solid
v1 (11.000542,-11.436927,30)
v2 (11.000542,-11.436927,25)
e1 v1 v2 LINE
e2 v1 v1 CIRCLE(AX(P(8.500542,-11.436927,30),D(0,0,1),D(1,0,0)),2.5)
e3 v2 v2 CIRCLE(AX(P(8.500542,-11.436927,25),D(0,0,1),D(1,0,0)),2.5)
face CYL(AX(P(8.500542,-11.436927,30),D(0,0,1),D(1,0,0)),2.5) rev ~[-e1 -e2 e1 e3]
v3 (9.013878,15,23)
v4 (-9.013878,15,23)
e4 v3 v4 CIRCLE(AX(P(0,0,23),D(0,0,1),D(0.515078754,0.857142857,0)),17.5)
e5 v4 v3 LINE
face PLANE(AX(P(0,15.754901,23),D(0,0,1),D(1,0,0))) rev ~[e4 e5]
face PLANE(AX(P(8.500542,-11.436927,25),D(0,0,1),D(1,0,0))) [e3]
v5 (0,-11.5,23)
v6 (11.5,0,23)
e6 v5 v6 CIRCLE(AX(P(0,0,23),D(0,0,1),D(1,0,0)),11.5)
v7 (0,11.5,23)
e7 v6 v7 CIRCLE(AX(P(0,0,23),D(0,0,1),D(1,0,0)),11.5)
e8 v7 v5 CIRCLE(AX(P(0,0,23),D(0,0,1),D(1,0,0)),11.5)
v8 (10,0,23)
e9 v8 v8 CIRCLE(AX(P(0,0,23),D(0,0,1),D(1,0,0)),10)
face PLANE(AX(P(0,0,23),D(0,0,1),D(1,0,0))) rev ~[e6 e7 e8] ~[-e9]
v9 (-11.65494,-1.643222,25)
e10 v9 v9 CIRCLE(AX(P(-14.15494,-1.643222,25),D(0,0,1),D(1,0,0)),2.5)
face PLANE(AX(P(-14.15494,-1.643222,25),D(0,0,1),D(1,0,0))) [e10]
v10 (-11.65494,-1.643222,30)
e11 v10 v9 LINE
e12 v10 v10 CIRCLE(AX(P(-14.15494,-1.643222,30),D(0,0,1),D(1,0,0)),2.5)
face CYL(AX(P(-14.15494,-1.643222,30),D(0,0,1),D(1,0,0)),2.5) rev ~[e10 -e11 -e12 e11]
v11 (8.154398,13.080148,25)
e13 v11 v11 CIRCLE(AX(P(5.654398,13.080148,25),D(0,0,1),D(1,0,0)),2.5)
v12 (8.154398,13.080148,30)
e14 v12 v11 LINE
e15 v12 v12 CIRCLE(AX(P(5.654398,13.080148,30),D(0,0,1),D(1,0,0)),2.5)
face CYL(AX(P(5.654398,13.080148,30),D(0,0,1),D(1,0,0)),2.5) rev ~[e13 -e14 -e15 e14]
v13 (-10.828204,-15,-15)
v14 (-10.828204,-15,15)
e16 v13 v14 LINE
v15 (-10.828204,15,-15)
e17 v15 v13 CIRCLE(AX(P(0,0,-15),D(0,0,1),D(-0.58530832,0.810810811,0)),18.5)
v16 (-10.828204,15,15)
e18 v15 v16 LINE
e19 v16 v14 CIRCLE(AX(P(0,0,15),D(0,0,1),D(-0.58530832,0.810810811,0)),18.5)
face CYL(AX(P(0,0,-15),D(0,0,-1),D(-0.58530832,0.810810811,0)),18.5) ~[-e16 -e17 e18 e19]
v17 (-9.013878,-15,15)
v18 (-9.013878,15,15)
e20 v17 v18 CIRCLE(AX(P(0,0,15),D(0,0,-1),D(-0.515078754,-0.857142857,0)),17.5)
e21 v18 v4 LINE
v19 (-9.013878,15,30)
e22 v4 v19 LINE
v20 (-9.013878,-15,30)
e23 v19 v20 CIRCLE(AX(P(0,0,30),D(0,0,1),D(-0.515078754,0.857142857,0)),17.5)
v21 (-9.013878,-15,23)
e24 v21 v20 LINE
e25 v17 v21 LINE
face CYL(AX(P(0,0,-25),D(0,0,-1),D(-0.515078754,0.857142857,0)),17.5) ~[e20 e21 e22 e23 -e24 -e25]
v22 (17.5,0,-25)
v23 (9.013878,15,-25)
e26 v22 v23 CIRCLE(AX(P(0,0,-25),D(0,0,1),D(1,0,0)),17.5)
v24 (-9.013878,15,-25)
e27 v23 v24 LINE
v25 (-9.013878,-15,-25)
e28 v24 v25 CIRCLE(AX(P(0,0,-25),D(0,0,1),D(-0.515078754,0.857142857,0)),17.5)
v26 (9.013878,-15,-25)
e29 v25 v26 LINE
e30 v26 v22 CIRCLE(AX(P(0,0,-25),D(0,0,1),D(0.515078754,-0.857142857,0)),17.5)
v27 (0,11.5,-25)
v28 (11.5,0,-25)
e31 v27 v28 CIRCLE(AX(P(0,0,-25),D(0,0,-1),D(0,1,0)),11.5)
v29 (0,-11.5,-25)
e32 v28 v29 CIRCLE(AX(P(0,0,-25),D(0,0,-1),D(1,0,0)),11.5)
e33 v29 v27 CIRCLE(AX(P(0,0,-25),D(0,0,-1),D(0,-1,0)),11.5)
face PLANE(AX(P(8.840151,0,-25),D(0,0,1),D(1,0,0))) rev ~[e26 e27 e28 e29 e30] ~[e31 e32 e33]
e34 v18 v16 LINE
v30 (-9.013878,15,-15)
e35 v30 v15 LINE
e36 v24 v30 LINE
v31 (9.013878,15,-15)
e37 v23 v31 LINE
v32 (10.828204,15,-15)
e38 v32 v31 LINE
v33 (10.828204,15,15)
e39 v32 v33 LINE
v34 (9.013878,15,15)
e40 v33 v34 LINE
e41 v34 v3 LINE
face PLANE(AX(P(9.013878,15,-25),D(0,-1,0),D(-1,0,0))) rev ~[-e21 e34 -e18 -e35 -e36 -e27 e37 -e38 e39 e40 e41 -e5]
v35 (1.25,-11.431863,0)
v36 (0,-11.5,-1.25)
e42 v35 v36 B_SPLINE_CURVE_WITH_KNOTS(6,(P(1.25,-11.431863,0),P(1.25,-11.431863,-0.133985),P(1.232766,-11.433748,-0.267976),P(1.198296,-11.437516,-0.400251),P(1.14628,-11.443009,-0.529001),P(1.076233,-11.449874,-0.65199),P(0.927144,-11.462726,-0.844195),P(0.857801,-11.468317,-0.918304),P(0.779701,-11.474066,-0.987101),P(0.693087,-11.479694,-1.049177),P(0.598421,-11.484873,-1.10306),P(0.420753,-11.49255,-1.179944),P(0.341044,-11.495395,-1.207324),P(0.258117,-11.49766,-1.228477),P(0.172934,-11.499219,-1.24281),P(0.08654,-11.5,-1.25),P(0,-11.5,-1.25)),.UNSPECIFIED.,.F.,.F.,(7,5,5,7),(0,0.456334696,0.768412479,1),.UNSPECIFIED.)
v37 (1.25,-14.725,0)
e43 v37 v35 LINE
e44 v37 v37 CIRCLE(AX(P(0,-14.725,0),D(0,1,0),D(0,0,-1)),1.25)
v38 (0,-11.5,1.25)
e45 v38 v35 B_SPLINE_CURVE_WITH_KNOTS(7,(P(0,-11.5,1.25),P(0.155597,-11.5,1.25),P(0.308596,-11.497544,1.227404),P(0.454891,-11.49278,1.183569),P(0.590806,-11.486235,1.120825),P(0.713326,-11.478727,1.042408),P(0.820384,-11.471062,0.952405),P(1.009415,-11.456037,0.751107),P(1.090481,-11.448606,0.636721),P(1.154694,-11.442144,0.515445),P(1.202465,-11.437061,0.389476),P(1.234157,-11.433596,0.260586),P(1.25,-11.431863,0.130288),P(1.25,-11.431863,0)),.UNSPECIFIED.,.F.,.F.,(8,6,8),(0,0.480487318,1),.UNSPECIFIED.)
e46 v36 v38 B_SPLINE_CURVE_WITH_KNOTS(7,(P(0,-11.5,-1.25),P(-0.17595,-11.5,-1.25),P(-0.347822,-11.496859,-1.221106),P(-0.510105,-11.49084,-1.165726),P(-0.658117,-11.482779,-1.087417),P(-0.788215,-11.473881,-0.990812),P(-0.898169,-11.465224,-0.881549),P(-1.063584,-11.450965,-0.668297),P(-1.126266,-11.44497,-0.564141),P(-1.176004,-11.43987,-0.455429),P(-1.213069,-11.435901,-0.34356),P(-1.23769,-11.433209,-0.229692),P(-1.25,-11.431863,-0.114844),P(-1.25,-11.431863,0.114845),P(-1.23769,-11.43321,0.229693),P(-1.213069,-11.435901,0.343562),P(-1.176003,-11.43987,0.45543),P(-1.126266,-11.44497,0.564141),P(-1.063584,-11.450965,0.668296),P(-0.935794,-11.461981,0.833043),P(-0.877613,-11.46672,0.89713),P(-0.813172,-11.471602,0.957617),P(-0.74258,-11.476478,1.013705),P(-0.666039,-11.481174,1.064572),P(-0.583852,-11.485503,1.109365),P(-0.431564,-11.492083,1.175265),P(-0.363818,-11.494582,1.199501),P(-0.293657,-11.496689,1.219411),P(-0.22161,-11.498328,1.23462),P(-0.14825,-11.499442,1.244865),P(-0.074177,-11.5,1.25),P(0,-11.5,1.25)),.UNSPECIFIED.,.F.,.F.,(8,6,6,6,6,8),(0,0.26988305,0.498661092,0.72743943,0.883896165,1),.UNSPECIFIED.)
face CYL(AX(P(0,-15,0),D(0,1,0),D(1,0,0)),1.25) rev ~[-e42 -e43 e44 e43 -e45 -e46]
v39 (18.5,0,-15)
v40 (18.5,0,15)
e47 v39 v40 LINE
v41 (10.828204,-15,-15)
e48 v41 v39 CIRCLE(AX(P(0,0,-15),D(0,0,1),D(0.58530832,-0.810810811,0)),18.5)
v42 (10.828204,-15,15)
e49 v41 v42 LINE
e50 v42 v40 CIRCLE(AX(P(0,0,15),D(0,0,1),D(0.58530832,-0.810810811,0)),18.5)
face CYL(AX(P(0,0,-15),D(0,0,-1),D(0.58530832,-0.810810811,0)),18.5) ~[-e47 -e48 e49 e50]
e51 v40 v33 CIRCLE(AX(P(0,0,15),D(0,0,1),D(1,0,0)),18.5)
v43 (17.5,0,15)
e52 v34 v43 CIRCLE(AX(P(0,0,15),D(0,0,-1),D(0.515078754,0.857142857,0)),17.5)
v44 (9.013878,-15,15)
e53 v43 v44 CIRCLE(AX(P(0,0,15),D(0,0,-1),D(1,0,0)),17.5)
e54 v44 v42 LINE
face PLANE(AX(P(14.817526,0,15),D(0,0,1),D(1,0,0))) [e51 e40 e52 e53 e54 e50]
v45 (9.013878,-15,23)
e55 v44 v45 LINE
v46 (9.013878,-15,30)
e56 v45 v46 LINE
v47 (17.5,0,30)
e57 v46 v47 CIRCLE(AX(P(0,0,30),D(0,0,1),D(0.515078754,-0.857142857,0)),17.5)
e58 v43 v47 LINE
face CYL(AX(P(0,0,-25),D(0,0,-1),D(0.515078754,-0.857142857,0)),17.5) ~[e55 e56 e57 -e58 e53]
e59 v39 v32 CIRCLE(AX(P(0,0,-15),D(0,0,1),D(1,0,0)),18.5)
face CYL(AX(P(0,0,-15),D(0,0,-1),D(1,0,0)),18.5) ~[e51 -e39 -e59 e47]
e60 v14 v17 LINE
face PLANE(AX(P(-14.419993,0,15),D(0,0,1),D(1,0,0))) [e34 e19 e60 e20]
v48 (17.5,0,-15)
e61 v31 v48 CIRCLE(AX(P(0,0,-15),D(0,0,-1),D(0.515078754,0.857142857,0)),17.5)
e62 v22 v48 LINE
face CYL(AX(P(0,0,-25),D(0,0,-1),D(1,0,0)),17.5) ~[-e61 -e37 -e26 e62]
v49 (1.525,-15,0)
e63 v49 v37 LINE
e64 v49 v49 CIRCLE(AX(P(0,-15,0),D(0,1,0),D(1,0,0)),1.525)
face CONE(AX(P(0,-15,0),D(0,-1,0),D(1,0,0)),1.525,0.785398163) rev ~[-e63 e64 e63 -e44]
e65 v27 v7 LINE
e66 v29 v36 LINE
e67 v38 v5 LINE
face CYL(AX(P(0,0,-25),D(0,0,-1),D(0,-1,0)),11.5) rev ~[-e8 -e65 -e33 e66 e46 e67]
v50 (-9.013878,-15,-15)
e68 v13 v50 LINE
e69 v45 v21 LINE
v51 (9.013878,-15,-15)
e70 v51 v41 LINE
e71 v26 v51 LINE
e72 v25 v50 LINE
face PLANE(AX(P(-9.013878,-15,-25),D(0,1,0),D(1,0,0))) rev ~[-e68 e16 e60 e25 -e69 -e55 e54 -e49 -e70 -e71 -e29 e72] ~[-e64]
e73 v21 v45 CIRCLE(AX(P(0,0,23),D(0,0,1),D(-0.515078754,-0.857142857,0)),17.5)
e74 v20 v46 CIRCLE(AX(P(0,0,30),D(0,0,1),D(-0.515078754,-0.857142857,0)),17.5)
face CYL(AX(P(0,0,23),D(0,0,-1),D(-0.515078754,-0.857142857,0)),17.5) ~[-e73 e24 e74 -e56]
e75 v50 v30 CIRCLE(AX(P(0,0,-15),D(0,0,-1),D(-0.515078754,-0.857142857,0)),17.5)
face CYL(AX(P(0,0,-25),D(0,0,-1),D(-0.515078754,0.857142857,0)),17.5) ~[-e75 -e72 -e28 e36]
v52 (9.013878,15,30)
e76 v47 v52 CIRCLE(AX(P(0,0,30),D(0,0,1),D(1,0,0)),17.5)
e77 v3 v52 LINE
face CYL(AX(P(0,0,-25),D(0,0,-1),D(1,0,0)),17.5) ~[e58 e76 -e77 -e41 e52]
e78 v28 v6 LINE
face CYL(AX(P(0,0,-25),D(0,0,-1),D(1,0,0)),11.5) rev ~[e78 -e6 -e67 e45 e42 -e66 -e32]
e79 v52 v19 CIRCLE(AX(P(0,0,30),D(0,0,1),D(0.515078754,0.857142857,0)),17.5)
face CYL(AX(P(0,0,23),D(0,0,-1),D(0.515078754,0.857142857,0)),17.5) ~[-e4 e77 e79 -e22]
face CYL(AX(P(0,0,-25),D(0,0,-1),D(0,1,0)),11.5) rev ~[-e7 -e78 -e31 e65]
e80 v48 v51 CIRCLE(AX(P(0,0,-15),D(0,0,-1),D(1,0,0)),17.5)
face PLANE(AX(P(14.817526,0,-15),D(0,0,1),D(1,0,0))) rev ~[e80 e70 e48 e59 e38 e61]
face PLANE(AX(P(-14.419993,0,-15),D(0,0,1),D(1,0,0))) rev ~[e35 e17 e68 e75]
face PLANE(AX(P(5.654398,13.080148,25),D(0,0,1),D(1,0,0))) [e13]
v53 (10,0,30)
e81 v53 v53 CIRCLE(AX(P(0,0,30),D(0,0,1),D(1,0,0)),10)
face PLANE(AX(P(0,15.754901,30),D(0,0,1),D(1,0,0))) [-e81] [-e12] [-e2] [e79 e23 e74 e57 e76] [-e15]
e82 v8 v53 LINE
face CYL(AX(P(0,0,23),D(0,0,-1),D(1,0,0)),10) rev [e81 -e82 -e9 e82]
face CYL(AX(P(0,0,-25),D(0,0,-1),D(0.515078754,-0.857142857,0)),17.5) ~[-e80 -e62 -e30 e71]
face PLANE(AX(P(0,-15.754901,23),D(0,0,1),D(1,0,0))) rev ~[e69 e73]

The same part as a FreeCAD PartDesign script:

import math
import FreeCAD as App
import Part
import Sketcher

V = App.Vector
Q = App.Units.Quantity

doc = App.newDocument("Part")
params = doc.addObject("Spreadsheet::Sheet", "Params")
for row, (alias, value) in enumerate([
    ("sketch1_radius", "17.5 mm"),
    ("sketch1_radius2", "11.5 mm"),
    ("pad1_length", "30 mm"),
    ("pad1_length2", "25 mm"),
    ("sketch2_radius", "18.5 mm"),
    ("sketch2_radius2", "17.5 mm"),
    ("pad2_length", "15 mm"),
    ("pad2_length2", "15 mm"),
    ("sketch3_diameter", "23 mm"),
    ("sketch3_diameter2", "20 mm"),
    ("sketch3_radius", "17.5 mm"),
    ("pad3_length", "7 mm"),
    ("sketch4_diameter", "5 mm"),
    ("pocket1_length", "5 mm"),
    ("sketch5_diameter", "2.5 mm"),
    ("hole_diameter", "2.5 mm"),
    ("hole_depth", "7.5 mm"),
    ("hole_csink_diameter", "3.05 mm"),
], start=1):
    params.set(f"A{row}", alias)
    params.set(f"B{row}", "=" + value)
    params.setAlias(f"B{row}", alias)

body = doc.addObject("PartDesign::Body", "Body")

# Sketch on XY plane
sketch1 = doc.addObject("Sketcher::SketchObject", "Sketch")
body.addObject(sketch1)
sketch1.AttachmentSupport = (doc.XY_Plane, [""])
sketch1.MapMode = "FlatFace"
sketch1.addGeometry(Part.ArcOfCircle(Part.Circle(V(0, 0, 0), V(0, 0, 1), 17), math.radians(-59), math.radians(0)), False)
sketch1.addGeometry(Part.ArcOfCircle(Part.Circle(V(0, 0, 0), V(0, 0, 1), 17), math.radians(0), math.radians(59)), False)
sketch1.addGeometry(Part.LineSegment(V(9, 15, 0), V(-9, 15, 0)), False)
sketch1.addGeometry(Part.ArcOfCircle(Part.Circle(V(0, 0, 0), V(0, 0, 1), 18), math.radians(121), math.radians(239)), False)
sketch1.addGeometry(Part.LineSegment(V(-9, -15, 0), V(9, -15, 0)), False)
sketch1.addGeometry(Part.ArcOfCircle(Part.Circle(V(0, 0, 0), V(0, 0, 1), 11), math.radians(-90), math.radians(0)), False)
sketch1.addGeometry(Part.ArcOfCircle(Part.Circle(V(0, 0, 0), V(0, 0, 1), 12), math.radians(90), math.radians(270)), False)
sketch1.addGeometry(Part.ArcOfCircle(Part.Circle(V(0, 0, 0), V(0, 0, 1), 11), math.radians(0), math.radians(90)), False)
sketch1.addConstraint(Sketcher.Constraint("Tangent", 0, 2, 1, 1))
sketch1.addConstraint(Sketcher.Constraint("Coincident", 1, 2, 2, 1))
sketch1.addConstraint(Sketcher.Constraint("Coincident", 2, 2, 3, 1))
sketch1.addConstraint(Sketcher.Constraint("Coincident", 3, 2, 4, 1))
sketch1.addConstraint(Sketcher.Constraint("Coincident", 4, 2, 0, 1))
sketch1.addConstraint(Sketcher.Constraint("Tangent", 5, 1, 6, 2))
sketch1.addConstraint(Sketcher.Constraint("Tangent", 6, 1, 7, 2))
sketch1.addConstraint(Sketcher.Constraint("Tangent", 7, 1, 5, 2))
sketch1.addConstraint(Sketcher.Constraint("Horizontal", 2))
sketch1.addConstraint(Sketcher.Constraint("Horizontal", 4))
sketch1.addConstraint(Sketcher.Constraint("Coincident", 0, 3, -1, 1))
sketch1.addConstraint(Sketcher.Constraint("Coincident", 3, 3, -1, 1))
sketch1.addConstraint(Sketcher.Constraint("Coincident", 5, 3, -1, 1))
sketch1.addConstraint(Sketcher.Constraint("Equal", 0, 1))
sketch1.addConstraint(Sketcher.Constraint("Equal", 1, 3))
sketch1.addConstraint(Sketcher.Constraint("PointOnObject", 0, 2, -1))
sketch1.addConstraint(Sketcher.Constraint("PointOnObject", 5, 1, -2))
sketch1.addConstraint(Sketcher.Constraint("PointOnObject", 6, 1, -2))
sketch1.addConstraint(Sketcher.Constraint("PointOnObject", 7, 1, -1))
sketch1.addConstraint(Sketcher.Constraint("Vertical", 2, 2, 3, 2))
sketch1.addConstraint(Sketcher.Constraint("Radius", 0, Q("17.5 mm")))
sketch1.addConstraint(Sketcher.Constraint("Radius", 5, Q("11.5 mm")))
sketch1.addConstraint(Sketcher.Constraint("DistanceY", -1, 1, 1, 2, Q("15 mm")))
sketch1.setExpression("Constraints[20]", "Params.sketch1_radius")
sketch1.setExpression("Constraints[21]", "Params.sketch1_radius2")
pad1 = doc.addObject("PartDesign::Pad", "Pad")
body.addObject(pad1)
pad1.Profile = sketch1
pad1.Type = "TwoLengths"
pad1.setExpression("Length", "Params.pad1_length")
pad1.setExpression("Length2", "Params.pad1_length2")

# Sketch on XY plane
sketch2 = doc.addObject("Sketcher::SketchObject", "Sketch001")
body.addObject(sketch2)
sketch2.AttachmentSupport = (doc.XY_Plane, [""])
sketch2.MapMode = "FlatFace"
sketch2.addGeometry(Part.LineSegment(V(-9, 15, 0), V(-10.8, 15, 0)), False)
sketch2.addGeometry(Part.ArcOfCircle(Part.Circle(V(0, 0, 0), V(0, 0, 1), 18.5), math.radians(126), math.radians(234)), False)
sketch2.addGeometry(Part.LineSegment(V(-10.8, -15, 0), V(-9, -15, 0)), False)
sketch2.addGeometry(Part.ArcOfCircle(Part.Circle(V(0, 0, 0), V(0, 0, 1), 17.5), math.radians(121), math.radians(239)), False)
sketch2.addGeometry(Part.ArcOfCircle(Part.Circle(V(0, 0, 0), V(0, 0, 1), 18.5), math.radians(0), math.radians(54)), False)
sketch2.addGeometry(Part.LineSegment(V(10.8, 15, 0), V(9, 15, 0)), False)
sketch2.addGeometry(Part.ArcOfCircle(Part.Circle(V(0, 0, 0), V(0, 0, 1), 17.5), math.radians(0), math.radians(59)), False)
sketch2.addGeometry(Part.ArcOfCircle(Part.Circle(V(0, 0, 0), V(0, 0, 1), 17.5), math.radians(-59), math.radians(0)), False)
sketch2.addGeometry(Part.LineSegment(V(9, -15, 0), V(10.8, -15, 0)), False)
sketch2.addGeometry(Part.ArcOfCircle(Part.Circle(V(0, 0, 0), V(0, 0, 1), 18.5), math.radians(-54), math.radians(0)), False)
sketch2.addConstraint(Sketcher.Constraint("Coincident", 0, 2, 1, 1))
sketch2.addConstraint(Sketcher.Constraint("Coincident", 1, 2, 2, 1))
sketch2.addConstraint(Sketcher.Constraint("Coincident", 2, 2, 3, 2))
sketch2.addConstraint(Sketcher.Constraint("Coincident", 3, 1, 0, 1))
sketch2.addConstraint(Sketcher.Constraint("Coincident", 4, 2, 5, 1))
sketch2.addConstraint(Sketcher.Constraint("Coincident", 5, 2, 6, 2))
sketch2.addConstraint(Sketcher.Constraint("Tangent", 6, 1, 7, 2))
sketch2.addConstraint(Sketcher.Constraint("Coincident", 7, 1, 8, 1))
sketch2.addConstraint(Sketcher.Constraint("Coincident", 8, 2, 9, 1))
sketch2.addConstraint(Sketcher.Constraint("Tangent", 9, 2, 4, 1))
sketch2.addConstraint(Sketcher.Constraint("Horizontal", 0))
sketch2.addConstraint(Sketcher.Constraint("Horizontal", 2))
sketch2.addConstraint(Sketcher.Constraint("Horizontal", 5))
sketch2.addConstraint(Sketcher.Constraint("Horizontal", 8))
sketch2.addConstraint(Sketcher.Constraint("Coincident", 1, 3, -1, 1))
sketch2.addConstraint(Sketcher.Constraint("Coincident", 3, 3, -1, 1))
sketch2.addConstraint(Sketcher.Constraint("Coincident", 4, 3, -1, 1))
sketch2.addConstraint(Sketcher.Constraint("Coincident", 6, 3, -1, 1))
sketch2.addConstraint(Sketcher.Constraint("Equal", 1, 4))
sketch2.addConstraint(Sketcher.Constraint("Equal", 3, 6))
sketch2.addConstraint(Sketcher.Constraint("Equal", 6, 7))
sketch2.addConstraint(Sketcher.Constraint("Equal", 4, 9))
sketch2.addConstraint(Sketcher.Constraint("PointOnObject", 6, 1, -1))
sketch2.addConstraint(Sketcher.Constraint("PointOnObject", 9, 2, -1))
sketch2.addConstraint(Sketcher.Constraint("Horizontal", 3, 1, 4, 2))
sketch2.addConstraint(Sketcher.Constraint("Horizontal", 2, 2, 7, 1))
sketch2.addConstraint(Sketcher.Constraint("Vertical", 0, 2, 1, 2))
sketch2.addConstraint(Sketcher.Constraint("Radius", 1, Q("18.5 mm")))
sketch2.addConstraint(Sketcher.Constraint("Radius", 3, Q("17.5 mm")))
sketch2.addConstraint(Sketcher.Constraint("DistanceY", -1, 1, 0, 2, Q("15 mm")))
sketch2.setExpression("Constraints[27]", "Params.sketch2_radius")
sketch2.setExpression("Constraints[28]", "Params.sketch2_radius2")
pad2 = doc.addObject("PartDesign::Pad", "Pad001")
body.addObject(pad2)
pad2.Profile = sketch2
pad2.Type = "TwoLengths"
pad2.setExpression("Length", "Params.pad2_length")
pad2.setExpression("Length2", "Params.pad2_length2")

# Sketch on XY plane
sketch3 = doc.addObject("Sketcher::SketchObject", "Sketch002")
body.addObject(sketch3)
sketch3.AttachmentSupport = (doc.XY_Plane, [""])
sketch3.MapMode = "FlatFace"
sketch3.AttachmentOffset = App.Placement(V(0, 0, 23), App.Rotation())
sketch3.addGeometry(Part.ArcOfCircle(Part.Circle(V(0, 0, 0), V(0, 0, 1), 18), math.radians(59), math.radians(121)), False)
sketch3.addGeometry(Part.LineSegment(V(-9, 15, 0), V(9, 15, 0)), False)
sketch3.addGeometry(Part.Circle(V(0, 0, 0), V(0, 0, 1), 12), False)
sketch3.addGeometry(Part.Circle(V(0, 0, 0), V(0, 0, 1), 10), False)
sketch3.addGeometry(Part.ArcOfCircle(Part.Circle(V(0, 0, 0), V(0, 0, 1), 18), math.radians(-121), math.radians(-59)), False)
sketch3.addGeometry(Part.LineSegment(V(9, -15, 0), V(-9, -15, 0)), False)
sketch3.addConstraint(Sketcher.Constraint("Coincident", 0, 1, 1, 2))
sketch3.addConstraint(Sketcher.Constraint("Coincident", 1, 1, 0, 2))
sketch3.addConstraint(Sketcher.Constraint("Coincident", 4, 1, 5, 2))
sketch3.addConstraint(Sketcher.Constraint("Coincident", 5, 1, 4, 2))
sketch3.addConstraint(Sketcher.Constraint("Horizontal", 1))
sketch3.addConstraint(Sketcher.Constraint("Horizontal", 5))
sketch3.addConstraint(Sketcher.Constraint("Coincident", 0, 3, -1, 1))
sketch3.addConstraint(Sketcher.Constraint("Coincident", 2, 3, -1, 1))
sketch3.addConstraint(Sketcher.Constraint("Coincident", 3, 3, -1, 1))
sketch3.addConstraint(Sketcher.Constraint("Coincident", 4, 3, -1, 1))
sketch3.addConstraint(Sketcher.Constraint("Equal", 0, 4))
sketch3.addConstraint(Sketcher.Constraint("Vertical", 1, 1, 4, 1))
sketch3.addConstraint(Sketcher.Constraint("Diameter", 2, Q("23 mm")))
sketch3.addConstraint(Sketcher.Constraint("Diameter", 3, Q("20 mm")))
sketch3.addConstraint(Sketcher.Constraint("Radius", 0, Q("17.5 mm")))
sketch3.addConstraint(Sketcher.Constraint("DistanceY", -1, 1, 0, 1, Q("15 mm")))
sketch3.setExpression("Constraints[12]", "Params.sketch3_diameter")
sketch3.setExpression("Constraints[13]", "Params.sketch3_diameter2")
sketch3.setExpression("Constraints[14]", "Params.sketch3_radius")
pad3 = doc.addObject("PartDesign::Pad", "Pad002")
body.addObject(pad3)
pad3.Profile = sketch3
pad3.setExpression("Length", "Params.pad3_length")

# Sketch on XY plane
sketch4 = doc.addObject("Sketcher::SketchObject", "Sketch003")
body.addObject(sketch4)
sketch4.AttachmentSupport = (doc.XY_Plane, [""])
sketch4.MapMode = "FlatFace"
sketch4.AttachmentOffset = App.Placement(V(0, 0, 30), App.Rotation())
sketch4.addGeometry(Part.Circle(V(5.7, 13.1, 0), V(0, 0, 1), 2.5), False)
sketch4.addGeometry(Part.Circle(V(8.5, -11.4, 0), V(0, 0, 1), 2.5), False)
sketch4.addGeometry(Part.Circle(V(-14.2, -1.6, 0), V(0, 0, 1), 2.5), False)
sketch4.addConstraint(Sketcher.Constraint("Equal", 0, 1))
sketch4.addConstraint(Sketcher.Constraint("Equal", 1, 2))
sketch4.addConstraint(Sketcher.Constraint("Diameter", 0, Q("5 mm")))
sketch4.addConstraint(Sketcher.Constraint("DistanceX", -1, 1, 0, 3, Q("5.654398 mm")))
sketch4.addConstraint(Sketcher.Constraint("DistanceY", -1, 1, 0, 3, Q("13.080148 mm")))
sketch4.addConstraint(Sketcher.Constraint("DistanceX", -1, 1, 1, 3, Q("8.500542 mm")))
sketch4.addConstraint(Sketcher.Constraint("DistanceX", 2, 3, -1, 1, Q("14.15494 mm")))
sketch4.addConstraint(Sketcher.Constraint("DistanceY", 2, 3, -1, 1, Q("1.643222 mm")))
sketch4.addConstraint(Sketcher.Constraint("DistanceY", 1, 3, -1, 1, Q("11.436927 mm")))
sketch4.setExpression("Constraints[2]", "Params.sketch4_diameter")
pocket1 = doc.addObject("PartDesign::Pocket", "Pocket")
body.addObject(pocket1)
pocket1.Profile = sketch4
pocket1.setExpression("Length", "Params.pocket1_length")

# Sketch on XZ plane
sketch5 = doc.addObject("Sketcher::SketchObject", "Sketch004")
body.addObject(sketch5)
sketch5.AttachmentSupport = (doc.XZ_Plane, [""])
sketch5.MapMode = "FlatFace"
sketch5.AttachmentOffset = App.Placement(V(0, 0, 15), App.Rotation())
sketch5.addGeometry(Part.Circle(V(0, 0, 0), V(0, 0, 1), 1.2), False)
sketch5.addConstraint(Sketcher.Constraint("Coincident", 0, 3, -1, 1))
sketch5.addConstraint(Sketcher.Constraint("Diameter", 0, Q("2.5 mm")))
sketch5.setExpression("Constraints[1]", "Params.sketch5_diameter")
doc.recompute()
hole = doc.addObject("PartDesign::Hole", "Hole")
body.addObject(hole)
hole.Profile = sketch5
hole.ThreadType = "None"
hole.setExpression("Diameter", "Params.hole_diameter")
hole.DepthType = "Dimension"
hole.setExpression("Depth", "Params.hole_depth")
hole.DrillPoint = "Angled"
hole.DrillPointAngle = 118
hole.HoleCutType = "Countersink"
hole.setExpression("HoleCutDiameter", "Params.hole_csink_diameter")
hole.HoleCutCountersinkAngle = 90

doc.recompute()
